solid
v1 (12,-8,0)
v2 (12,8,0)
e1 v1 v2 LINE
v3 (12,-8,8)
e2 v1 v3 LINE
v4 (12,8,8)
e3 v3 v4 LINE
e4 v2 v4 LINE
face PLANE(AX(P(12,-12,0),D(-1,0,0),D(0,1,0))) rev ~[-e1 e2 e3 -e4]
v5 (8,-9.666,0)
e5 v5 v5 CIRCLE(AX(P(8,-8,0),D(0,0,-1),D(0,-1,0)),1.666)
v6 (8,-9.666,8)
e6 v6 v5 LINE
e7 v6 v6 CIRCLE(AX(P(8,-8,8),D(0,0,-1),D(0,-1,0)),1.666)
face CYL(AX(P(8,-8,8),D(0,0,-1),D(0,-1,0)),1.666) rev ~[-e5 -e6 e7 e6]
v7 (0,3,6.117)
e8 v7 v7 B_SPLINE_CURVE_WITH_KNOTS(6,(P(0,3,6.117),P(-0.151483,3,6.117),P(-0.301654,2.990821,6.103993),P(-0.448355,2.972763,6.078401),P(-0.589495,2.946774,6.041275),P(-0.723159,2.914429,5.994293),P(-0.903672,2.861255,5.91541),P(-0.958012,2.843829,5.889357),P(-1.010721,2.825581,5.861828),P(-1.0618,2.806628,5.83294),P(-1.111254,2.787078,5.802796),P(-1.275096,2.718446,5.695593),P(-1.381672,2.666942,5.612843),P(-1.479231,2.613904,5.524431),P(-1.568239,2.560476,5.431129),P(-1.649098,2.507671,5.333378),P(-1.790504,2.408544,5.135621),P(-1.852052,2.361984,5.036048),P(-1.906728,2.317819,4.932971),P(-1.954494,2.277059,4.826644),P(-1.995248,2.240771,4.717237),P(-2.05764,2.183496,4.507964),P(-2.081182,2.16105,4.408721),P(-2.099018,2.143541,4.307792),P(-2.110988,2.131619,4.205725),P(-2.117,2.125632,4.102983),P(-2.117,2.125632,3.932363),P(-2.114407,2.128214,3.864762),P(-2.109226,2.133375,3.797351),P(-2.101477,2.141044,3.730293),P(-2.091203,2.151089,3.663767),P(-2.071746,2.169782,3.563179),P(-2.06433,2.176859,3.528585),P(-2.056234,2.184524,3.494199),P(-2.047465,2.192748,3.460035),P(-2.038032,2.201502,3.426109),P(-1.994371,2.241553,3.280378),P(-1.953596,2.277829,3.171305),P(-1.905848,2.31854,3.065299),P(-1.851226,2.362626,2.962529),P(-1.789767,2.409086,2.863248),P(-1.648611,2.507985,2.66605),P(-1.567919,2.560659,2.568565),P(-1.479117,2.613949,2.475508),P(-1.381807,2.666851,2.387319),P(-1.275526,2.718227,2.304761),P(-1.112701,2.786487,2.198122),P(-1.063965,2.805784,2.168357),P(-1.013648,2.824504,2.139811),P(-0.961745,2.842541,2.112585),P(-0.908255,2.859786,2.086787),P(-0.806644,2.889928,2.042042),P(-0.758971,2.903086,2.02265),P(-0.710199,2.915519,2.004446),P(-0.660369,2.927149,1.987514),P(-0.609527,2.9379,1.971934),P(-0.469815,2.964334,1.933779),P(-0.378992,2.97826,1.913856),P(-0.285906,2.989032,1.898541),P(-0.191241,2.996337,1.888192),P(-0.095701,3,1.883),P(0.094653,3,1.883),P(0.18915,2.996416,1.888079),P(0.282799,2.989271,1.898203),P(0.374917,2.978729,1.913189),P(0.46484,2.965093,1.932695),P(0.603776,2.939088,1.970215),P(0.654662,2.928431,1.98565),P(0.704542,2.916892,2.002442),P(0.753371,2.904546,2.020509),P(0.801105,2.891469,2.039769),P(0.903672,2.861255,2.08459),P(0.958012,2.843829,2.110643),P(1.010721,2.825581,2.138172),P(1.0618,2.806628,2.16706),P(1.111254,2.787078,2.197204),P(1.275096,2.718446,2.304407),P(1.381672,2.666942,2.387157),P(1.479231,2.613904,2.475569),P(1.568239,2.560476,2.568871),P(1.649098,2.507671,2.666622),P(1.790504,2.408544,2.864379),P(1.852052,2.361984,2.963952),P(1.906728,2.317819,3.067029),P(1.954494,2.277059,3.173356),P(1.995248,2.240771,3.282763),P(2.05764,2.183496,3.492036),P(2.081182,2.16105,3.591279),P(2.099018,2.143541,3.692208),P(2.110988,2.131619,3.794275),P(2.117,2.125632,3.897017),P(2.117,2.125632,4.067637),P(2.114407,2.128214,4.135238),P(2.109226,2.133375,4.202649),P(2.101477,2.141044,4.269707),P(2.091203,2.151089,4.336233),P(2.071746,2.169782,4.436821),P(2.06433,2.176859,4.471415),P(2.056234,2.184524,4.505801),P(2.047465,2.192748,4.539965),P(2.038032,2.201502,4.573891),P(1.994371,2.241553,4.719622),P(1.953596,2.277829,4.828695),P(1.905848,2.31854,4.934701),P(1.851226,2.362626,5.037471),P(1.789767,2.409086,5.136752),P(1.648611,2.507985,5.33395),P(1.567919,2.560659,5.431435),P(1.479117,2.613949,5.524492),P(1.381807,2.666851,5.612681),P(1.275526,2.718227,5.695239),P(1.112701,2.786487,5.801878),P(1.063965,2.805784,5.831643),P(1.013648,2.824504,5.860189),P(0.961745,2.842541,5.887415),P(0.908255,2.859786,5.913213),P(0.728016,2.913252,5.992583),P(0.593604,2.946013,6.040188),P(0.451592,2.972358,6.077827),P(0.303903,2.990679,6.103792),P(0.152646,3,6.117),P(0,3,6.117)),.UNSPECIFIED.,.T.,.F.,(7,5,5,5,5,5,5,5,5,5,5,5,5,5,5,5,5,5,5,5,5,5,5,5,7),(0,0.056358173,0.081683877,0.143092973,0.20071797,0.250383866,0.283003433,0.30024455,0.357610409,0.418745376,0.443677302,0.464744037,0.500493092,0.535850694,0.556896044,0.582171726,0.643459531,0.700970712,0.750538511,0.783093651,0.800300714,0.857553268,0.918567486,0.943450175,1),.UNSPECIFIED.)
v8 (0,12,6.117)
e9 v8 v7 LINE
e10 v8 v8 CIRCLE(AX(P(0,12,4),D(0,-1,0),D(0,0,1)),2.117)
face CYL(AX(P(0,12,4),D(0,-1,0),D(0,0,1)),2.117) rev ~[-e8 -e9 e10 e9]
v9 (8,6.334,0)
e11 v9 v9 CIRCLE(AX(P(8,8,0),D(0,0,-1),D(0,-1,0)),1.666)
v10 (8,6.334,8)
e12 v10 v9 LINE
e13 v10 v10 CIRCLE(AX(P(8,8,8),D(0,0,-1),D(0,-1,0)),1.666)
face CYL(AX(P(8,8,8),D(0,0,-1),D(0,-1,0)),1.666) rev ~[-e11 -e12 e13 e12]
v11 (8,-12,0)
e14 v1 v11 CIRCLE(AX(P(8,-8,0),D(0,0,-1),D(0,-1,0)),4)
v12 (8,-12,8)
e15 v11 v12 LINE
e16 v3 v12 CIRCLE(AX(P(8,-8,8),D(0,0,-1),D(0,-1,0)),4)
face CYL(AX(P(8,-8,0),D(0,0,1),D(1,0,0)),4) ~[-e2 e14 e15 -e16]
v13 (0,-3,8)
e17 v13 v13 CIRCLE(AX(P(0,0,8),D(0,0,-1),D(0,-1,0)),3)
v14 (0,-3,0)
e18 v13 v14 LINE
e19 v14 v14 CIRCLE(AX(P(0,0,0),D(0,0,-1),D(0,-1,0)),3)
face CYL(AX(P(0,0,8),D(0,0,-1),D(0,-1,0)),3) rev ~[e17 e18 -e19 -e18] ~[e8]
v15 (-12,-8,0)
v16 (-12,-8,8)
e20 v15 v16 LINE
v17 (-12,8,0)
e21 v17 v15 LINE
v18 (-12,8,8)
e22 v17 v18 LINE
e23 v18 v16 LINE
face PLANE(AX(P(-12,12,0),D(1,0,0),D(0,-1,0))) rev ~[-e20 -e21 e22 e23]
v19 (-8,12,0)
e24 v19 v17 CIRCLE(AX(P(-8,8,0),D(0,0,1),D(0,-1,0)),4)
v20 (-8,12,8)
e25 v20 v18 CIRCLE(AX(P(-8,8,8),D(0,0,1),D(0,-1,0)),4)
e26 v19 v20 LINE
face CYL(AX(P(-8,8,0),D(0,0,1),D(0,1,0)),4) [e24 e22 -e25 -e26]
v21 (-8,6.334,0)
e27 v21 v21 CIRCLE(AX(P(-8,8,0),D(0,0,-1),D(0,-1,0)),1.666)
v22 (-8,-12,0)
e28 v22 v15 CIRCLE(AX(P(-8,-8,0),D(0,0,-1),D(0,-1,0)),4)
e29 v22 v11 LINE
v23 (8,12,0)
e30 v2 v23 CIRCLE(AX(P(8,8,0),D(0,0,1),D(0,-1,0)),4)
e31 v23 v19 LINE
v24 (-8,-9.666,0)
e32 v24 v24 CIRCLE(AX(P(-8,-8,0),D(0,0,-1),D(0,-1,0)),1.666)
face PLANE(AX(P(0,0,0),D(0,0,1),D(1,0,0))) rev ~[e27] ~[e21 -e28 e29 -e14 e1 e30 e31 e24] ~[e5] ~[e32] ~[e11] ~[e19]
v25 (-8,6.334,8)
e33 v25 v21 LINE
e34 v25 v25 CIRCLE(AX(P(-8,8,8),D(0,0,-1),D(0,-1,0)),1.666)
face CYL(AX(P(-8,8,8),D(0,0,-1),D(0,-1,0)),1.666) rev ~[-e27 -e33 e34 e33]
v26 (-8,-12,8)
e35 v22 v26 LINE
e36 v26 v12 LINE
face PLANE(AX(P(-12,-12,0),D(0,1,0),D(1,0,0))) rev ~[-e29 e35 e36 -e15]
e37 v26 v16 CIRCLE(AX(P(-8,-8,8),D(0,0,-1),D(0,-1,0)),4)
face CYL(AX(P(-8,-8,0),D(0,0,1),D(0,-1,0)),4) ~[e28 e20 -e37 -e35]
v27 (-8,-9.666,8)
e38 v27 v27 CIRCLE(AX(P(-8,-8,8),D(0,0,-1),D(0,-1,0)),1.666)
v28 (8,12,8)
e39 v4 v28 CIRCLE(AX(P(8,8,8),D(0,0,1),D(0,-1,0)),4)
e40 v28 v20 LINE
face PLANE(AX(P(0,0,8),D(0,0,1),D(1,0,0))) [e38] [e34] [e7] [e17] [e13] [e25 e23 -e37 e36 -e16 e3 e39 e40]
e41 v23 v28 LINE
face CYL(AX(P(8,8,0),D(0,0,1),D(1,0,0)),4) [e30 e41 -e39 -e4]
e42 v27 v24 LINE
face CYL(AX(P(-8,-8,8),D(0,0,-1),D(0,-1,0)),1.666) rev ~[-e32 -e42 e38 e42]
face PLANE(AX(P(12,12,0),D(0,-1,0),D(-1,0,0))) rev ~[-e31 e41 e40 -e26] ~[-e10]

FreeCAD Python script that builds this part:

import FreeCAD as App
import Part
import Sketcher
from FreeCAD import Vector
Q = App.Units.Quantity


def edges_at(feature, points):
    """Names of the edges that pass closest to the given points."""
    edges = feature.Shape.Edges
    near = lambda p: min(range(len(edges)), key=lambda i: edges[i].distToShape(Part.Vertex(*p))[0])
    return sorted({f"Edge{near(p) + 1}" for p in points})


def add_polygon(sketch, points):
    """Adds a closed chain of lines whose ends are joined by coincident constraints."""
    first, n = sketch.GeometryCount, len(points)
    for a, b in zip(points, points[1:] + points[:1]):
        sketch.addGeometry(Part.LineSegment(App.Vector(*a, 0), App.Vector(*b, 0)), False)
    for i in range(n):
        sketch.addConstraint(Sketcher.Constraint("Coincident", first + i, 2, first + (i + 1) % n, 1))

doc = App.newDocument("Part")
params = doc.addObject("Spreadsheet::Sheet", "Params")
for row, (alias, value) in enumerate([
    ("sketch1_width", "24 mm"),
    ("pad1_length", "8 mm"),
    ("sketch2_diameter", "6 mm"),
    ("hole_diameter", "6 mm"),
    ("hole2_diameter", "3.332 mm"),
    ("hole3_diameter", "4.234 mm"),
    ("hole3_depth", "10 mm"),
    ("fillet_radius", "4 mm"),
], start=1):
    params.set(f"A{row}", alias)
    params.set(f"B{row}", "=" + value)
    params.setAlias(f"B{row}", alias)

body = doc.addObject("PartDesign::Body", "Body")

sketch1 = body.newObject("Sketcher::SketchObject", "Sketch")
sketch1.AttachmentSupport = (doc.getObject("XY_Plane"), [""])
sketch1.MapMode = "FlatFace"
add_polygon(sketch1, [(12, -12), (12, 12), (-12, 12), (-12, -12)])
sketch1.addConstraint([
    Sketcher.Constraint("Vertical", 0),
    Sketcher.Constraint("Horizontal", 1),
    Sketcher.Constraint("Vertical", 2),
    Sketcher.Constraint("Horizontal", 3),
    Sketcher.Constraint("Symmetric", 0, 2, 2, 2, -1, 1),
    Sketcher.Constraint("Equal", 3, 0),
    Sketcher.Constraint("DistanceX", 1, 2, 1, 1, Q("24 mm")),
])
sketch1.setExpression("Constraints[10]", "Params.sketch1_width")
pad1 = body.newObject("PartDesign::Pad", "Pad")
pad1.Profile = sketch1
pad1.setExpression("Length", "Params.pad1_length")

sketch2 = body.newObject("Sketcher::SketchObject", "Sketch001")
sketch2.AttachmentSupport = (doc.getObject("XY_Plane"), [""])
sketch2.MapMode = "FlatFace"
sketch2.AttachmentOffset = App.Placement(Vector(0, 0, 8), App.Rotation())
sketch2.addGeometry(Part.Circle(Vector(0, 0, 0), Vector(0, 0, 1), 3), False)
sketch2.addConstraint([
    Sketcher.Constraint("Coincident", 0, 3, -1, 1),
    Sketcher.Constraint("Diameter", 0, Q("6 mm")),
])
sketch2.setExpression("Constraints[1]", "Params.sketch2_diameter")
doc.recompute()
hole = body.newObject("PartDesign::Hole", "Hole")
hole.Profile = sketch2
hole.ThreadType = "None"
hole.setExpression("Diameter", "Params.hole_diameter")
hole.DepthType = "ThroughAll"

sketch3 = body.newObject("Sketcher::SketchObject", "Sketch002")
sketch3.AttachmentSupport = (doc.getObject("XY_Plane"), [""])
sketch3.MapMode = "FlatFace"
sketch3.AttachmentOffset = App.Placement(Vector(0, 0, 8), App.Rotation())
sketch3.addGeometry([
    Part.Circle(Vector(8, 8, 0), Vector(0, 0, 1), 1.666),
    Part.Circle(Vector(-8, 8, 0), Vector(0, 0, 1), 1.666),
    Part.Circle(Vector(-8, -8, 0), Vector(0, 0, 1), 1.666),
    Part.Circle(Vector(8, -8, 0), Vector(0, 0, 1), 1.666),
], False)
sketch3.addConstraint([
    Sketcher.Constraint("Equal", 0, 1),
    Sketcher.Constraint("Equal", 1, 2),
    Sketcher.Constraint("Equal", 2, 3),
    Sketcher.Constraint("Symmetric", 0, 3, 2, 3, -1, 1),
    Sketcher.Constraint("Symmetric", 1, 3, 3, 3, -1, 1),
    Sketcher.Constraint("Symmetric", 0, 3, 1, 3, -2),
    Sketcher.Constraint("Diameter", 0, Q("3.332 mm")),
    Sketcher.Constraint("DistanceX", -1, 1, 0, 3, Q("8 mm")),
    Sketcher.Constraint("DistanceY", -1, 1, 0, 3, Q("8 mm")),
])
doc.recompute()
hole2 = body.newObject("PartDesign::Hole", "Hole001")
hole2.Profile = sketch3
hole2.ThreadType = "None"
hole2.setExpression("Diameter", "Params.hole2_diameter")
hole2.DepthType = "ThroughAll"

sketch4 = body.newObject("Sketcher::SketchObject", "Sketch003")
sketch4.AttachmentSupport = (doc.getObject("XZ_Plane"), [""])
sketch4.MapMode = "FlatFace"
sketch4.AttachmentOffset = App.Placement(Vector(0, 0, -12), App.Rotation())
sketch4.addGeometry(Part.Circle(Vector(0, 4, 0), Vector(0, 0, 1), 2.117), False)
sketch4.addConstraint([
    Sketcher.Constraint("PointOnObject", 0, 3, -2),
    Sketcher.Constraint("Diameter", 0, Q("4.234 mm")),
    Sketcher.Constraint("DistanceY", -1, 1, 0, 3, Q("4 mm")),
])
doc.recompute()
hole3 = body.newObject("PartDesign::Hole", "Hole002")
hole3.Profile = sketch4
hole3.ThreadType = "None"
hole3.setExpression("Diameter", "Params.hole3_diameter")
hole3.DepthType = "Dimension"
hole3.setExpression("Depth", "Params.hole3_depth")
hole3.DrillPoint = "Flat"
hole3.Reversed = True
doc.recompute()

fillet = body.newObject("PartDesign::Fillet", "Fillet")
fillet.Base = (hole3, edges_at(hole3, [
    (12, 12, 4),
    (-12, 12, 4),
    (12, -12, 4),
    (-12, -12, 4),
]))
fillet.setExpression("Radius", "Params.fillet_radius")

doc.recompute()
